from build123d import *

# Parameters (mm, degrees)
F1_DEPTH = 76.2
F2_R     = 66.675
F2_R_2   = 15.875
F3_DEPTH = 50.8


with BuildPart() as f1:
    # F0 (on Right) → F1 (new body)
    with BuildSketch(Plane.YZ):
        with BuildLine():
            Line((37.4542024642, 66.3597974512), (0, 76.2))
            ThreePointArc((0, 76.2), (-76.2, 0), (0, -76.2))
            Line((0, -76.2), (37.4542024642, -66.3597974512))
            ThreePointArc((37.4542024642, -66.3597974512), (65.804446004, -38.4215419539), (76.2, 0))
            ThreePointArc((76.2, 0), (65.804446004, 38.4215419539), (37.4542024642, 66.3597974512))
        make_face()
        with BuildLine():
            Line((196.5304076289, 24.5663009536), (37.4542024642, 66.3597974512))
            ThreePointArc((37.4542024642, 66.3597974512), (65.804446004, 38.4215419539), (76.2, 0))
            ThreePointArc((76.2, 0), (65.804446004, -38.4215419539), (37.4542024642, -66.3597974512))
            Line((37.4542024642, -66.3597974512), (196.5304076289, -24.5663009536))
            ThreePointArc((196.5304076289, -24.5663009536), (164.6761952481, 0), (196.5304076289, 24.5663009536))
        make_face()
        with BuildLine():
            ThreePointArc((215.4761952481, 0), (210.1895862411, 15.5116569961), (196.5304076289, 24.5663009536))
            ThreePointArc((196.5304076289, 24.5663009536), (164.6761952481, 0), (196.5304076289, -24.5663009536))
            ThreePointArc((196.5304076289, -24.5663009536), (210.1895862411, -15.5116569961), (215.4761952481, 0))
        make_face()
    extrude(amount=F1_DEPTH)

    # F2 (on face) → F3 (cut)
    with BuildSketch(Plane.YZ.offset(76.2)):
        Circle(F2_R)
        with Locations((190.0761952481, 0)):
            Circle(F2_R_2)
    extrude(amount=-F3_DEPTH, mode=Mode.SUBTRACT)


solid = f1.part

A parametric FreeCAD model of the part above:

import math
import FreeCAD as App
import Part
import Sketcher
from FreeCAD import Vector
Q = App.Units.Quantity

doc = App.newDocument("Part")
params = doc.addObject("Spreadsheet::Sheet", "Params")
for row, (alias, value) in enumerate([
    ("sketch1_radius", "3 in"),
    ("sketch1_radius2", "1 in"),
    ("pad1_length", "3 in"),
    ("sketch2_diameter", "5.25 in"),
    ("sketch2_diameter2", "1.25 in"),
    ("pocket1_length", "2 in"),
], start=1):
    params.set(f"A{row}", alias)
    params.set(f"B{row}", "=" + value)
    params.setAlias(f"B{row}", alias)

body = doc.addObject("PartDesign::Body", "Body")

sketch1 = doc.addObject("Sketcher::SketchObject", "Sketch")
body.addObject(sketch1)
sketch1.AttachmentSupport = (doc.YZ_Plane, [""])
sketch1.MapMode = "FlatFace"
sketch1.addGeometry([
    Part.LineSegment(Vector(37.454202, 66.359797, 0), Vector(0, 76.2, 0)),
    Part.ArcOfCircle(Part.Circle(Vector(0, 0, 0), Vector(0, 0, 1), 76.2), math.radians(90), math.radians(270)),
    Part.LineSegment(Vector(0, -76.2, 0), Vector(37.454202, -66.359797, 0)),
    Part.LineSegment(Vector(37.454202, -66.359797, 0), Vector(196.530408, -24.566301, 0)),
    Part.ArcOfCircle(Part.Circle(Vector(190.076195, 0, 0), Vector(0, 0, 1), 25.4), math.radians(-75.279569), math.radians(0)),
    Part.ArcOfCircle(Part.Circle(Vector(190.076195, 0, 0), Vector(0, 0, 1), 25.4), math.radians(0), math.radians(75.279569)),
    Part.LineSegment(Vector(196.530408, 24.566301, 0), Vector(37.454202, 66.359797, 0)),
], False)
sketch1.addConstraint([
    Sketcher.Constraint("Coincident", 0, 2, 1, 1),
    Sketcher.Constraint("Coincident", 1, 2, 2, 1),
    Sketcher.Constraint("Coincident", 2, 2, 3, 1),
    Sketcher.Constraint("Tangent", 3, 2, 4, 1),
    Sketcher.Constraint("Tangent", 4, 2, 5, 1),
    Sketcher.Constraint("Tangent", 5, 2, 6, 1),
    Sketcher.Constraint("Coincident", 6, 2, 0, 1),
    Sketcher.Constraint("Coincident", 1, 3, -1, 1),
    Sketcher.Constraint("Equal", 4, 5),
    Sketcher.Constraint("Symmetric", 3, 2, 5, 2, -1),
    Sketcher.Constraint("PointOnObject", 0, 2, -2),
    Sketcher.Constraint("PointOnObject", 1, 2, -2),
    Sketcher.Constraint("PointOnObject", 4, 2, -1),
    Sketcher.Constraint("Parallel", 2, 3),
    Sketcher.Constraint("Vertical", 2, 2, 6, 2),
    Sketcher.Constraint("Radius", 1, Q("3 in")),
    Sketcher.Constraint("Radius", 4, Q("1 in")),
    Sketcher.Constraint("DistanceY", 3, 2, -1, 1, 24.566301),
    Sketcher.Constraint("DistanceY", 2, 2, 5, 2, 90.926098),
])
sketch1.setExpression("Constraints[15]", "Params.sketch1_radius")
sketch1.setExpression("Constraints[16]", "Params.sketch1_radius2")
pad1 = doc.addObject("PartDesign::Pad", "Pad")
body.addObject(pad1)
pad1.Profile = sketch1
pad1.setExpression("Length", "Params.pad1_length")

sketch2 = doc.addObject("Sketcher::SketchObject", "Sketch001")
body.addObject(sketch2)
sketch2.AttachmentSupport = (doc.YZ_Plane, [""])
sketch2.MapMode = "FlatFace"
sketch2.AttachmentOffset = App.Placement(Vector(0, 0, 3 * 25.4), App.Rotation())
sketch2.addGeometry([
    Part.Circle(Vector(0, 0, 0), Vector(0, 0, 1), 66.675),
    Part.Circle(Vector(190.076195, 0, 0), Vector(0, 0, 1), 15.875),
], False)
sketch2.addConstraint([
    Sketcher.Constraint("Coincident", 0, 3, -1, 1),
    Sketcher.Constraint("PointOnObject", 1, 3, -1),
    Sketcher.Constraint("Diameter", 0, Q("5.25 in")),
    Sketcher.Constraint("Diameter", 1, Q("1.25 in")),
    Sketcher.Constraint("DistanceX", -1, 1, 1, 3, 190.076195),
])
sketch2.setExpression("Constraints[2]", "Params.sketch2_diameter")
sketch2.setExpression("Constraints[3]", "Params.sketch2_diameter2")
pocket1 = doc.addObject("PartDesign::Pocket", "Pocket")
body.addObject(pocket1)
pocket1.Profile = sketch2
pocket1.setExpression("Length", "Params.pocket1_length")

doc.recompute()
